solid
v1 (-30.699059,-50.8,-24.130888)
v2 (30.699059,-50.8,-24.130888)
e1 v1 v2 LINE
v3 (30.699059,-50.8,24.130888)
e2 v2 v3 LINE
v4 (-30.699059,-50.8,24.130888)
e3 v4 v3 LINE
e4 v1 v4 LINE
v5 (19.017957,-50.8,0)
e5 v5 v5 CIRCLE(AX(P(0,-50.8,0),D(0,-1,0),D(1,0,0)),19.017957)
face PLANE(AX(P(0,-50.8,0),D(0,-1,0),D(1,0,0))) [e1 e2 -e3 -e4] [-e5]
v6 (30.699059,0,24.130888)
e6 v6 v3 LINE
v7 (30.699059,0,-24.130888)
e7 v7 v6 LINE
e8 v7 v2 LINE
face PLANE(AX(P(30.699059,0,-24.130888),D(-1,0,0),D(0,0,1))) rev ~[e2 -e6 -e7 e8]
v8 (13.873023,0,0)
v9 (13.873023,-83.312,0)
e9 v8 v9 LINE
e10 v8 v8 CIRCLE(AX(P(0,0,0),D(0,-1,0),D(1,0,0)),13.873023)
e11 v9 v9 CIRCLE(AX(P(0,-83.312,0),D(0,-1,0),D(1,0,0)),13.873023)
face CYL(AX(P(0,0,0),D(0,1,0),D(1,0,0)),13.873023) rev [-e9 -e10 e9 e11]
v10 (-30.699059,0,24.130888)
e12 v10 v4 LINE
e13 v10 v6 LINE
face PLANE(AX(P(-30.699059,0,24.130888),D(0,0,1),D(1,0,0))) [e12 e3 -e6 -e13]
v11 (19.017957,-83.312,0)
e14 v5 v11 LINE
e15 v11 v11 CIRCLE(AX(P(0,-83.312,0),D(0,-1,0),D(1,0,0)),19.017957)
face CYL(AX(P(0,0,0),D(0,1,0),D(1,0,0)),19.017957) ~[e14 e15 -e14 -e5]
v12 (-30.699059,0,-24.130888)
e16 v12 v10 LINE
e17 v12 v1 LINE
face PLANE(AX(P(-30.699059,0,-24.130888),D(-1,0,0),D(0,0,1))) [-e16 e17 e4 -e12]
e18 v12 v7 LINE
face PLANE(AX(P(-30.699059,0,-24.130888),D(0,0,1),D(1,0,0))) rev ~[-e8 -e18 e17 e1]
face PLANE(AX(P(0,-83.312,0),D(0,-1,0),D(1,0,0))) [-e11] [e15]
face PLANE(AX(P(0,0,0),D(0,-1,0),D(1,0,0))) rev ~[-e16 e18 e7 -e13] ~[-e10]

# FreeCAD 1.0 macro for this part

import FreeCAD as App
import Part
import Sketcher
from FreeCAD import Vector


def add_polygon(sketch, points):
    """Adds a closed chain of lines whose ends are joined by coincident constraints."""
    first, n = sketch.GeometryCount, len(points)
    for a, b in zip(points, points[1:] + points[:1]):
        sketch.addGeometry(Part.LineSegment(App.Vector(*a, 0), App.Vector(*b, 0)), False)
    for i in range(n):
        sketch.addConstraint(Sketcher.Constraint("Coincident", first + i, 2, first + (i + 1) % n, 1))

doc = App.newDocument("Part")
params = doc.addObject("Spreadsheet::Sheet", "Params")
for row, (alias, value) in enumerate([
    ("pad1_length", "2 in"),
    ("pad2_length", "3.28 in"),
], start=1):
    params.set(f"A{row}", alias)
    params.set(f"B{row}", "=" + value)
    params.setAlias(f"B{row}", alias)

body = doc.addObject("PartDesign::Body", "Body")

# Sketch on XZ plane
sketch1 = body.newObject("Sketcher::SketchObject", "Sketch")
sketch1.AttachmentSupport = (doc.getObject("XZ_Plane"), [""])
sketch1.MapMode = "FlatFace"
add_polygon(sketch1, [(-31, 24), (-31, -24), (31, -24), (31, 24)])  # lines 0-3
sketch1.addGeometry(Part.Circle(Vector(0, 0, 0), Vector(0, 0, 1), 19), False)  # 4
sketch1.addConstraint([
    Sketcher.Constraint("Vertical", 0),
    Sketcher.Constraint("Horizontal", 1),
    Sketcher.Constraint("Vertical", 2),
    Sketcher.Constraint("Horizontal", 3),
    Sketcher.Constraint("Coincident", 4, 3, -1, 1),
    Sketcher.Constraint("Symmetric", 0, 2, 2, 2, -1, 1),
    Sketcher.Constraint("Diameter", 4, 38.035914),
    Sketcher.Constraint("DistanceX", 1, 1, 1, 2, 61.398118),
    Sketcher.Constraint("DistanceY", 0, 2, 0, 1, 48.261776),
])
pad1 = body.newObject("PartDesign::Pad", "Pad")
pad1.Profile = sketch1
pad1.setExpression("Length", "Params.pad1_length")

# Sketch on XZ plane
sketch2 = body.newObject("Sketcher::SketchObject", "Sketch001")
sketch2.AttachmentSupport = (doc.getObject("XZ_Plane"), [""])
sketch2.MapMode = "FlatFace"
sketch2.addGeometry([
    Part.Circle(Vector(0, 0, 0), Vector(0, 0, 1), 19),
    Part.Circle(Vector(0, 0, 0), Vector(0, 0, 1), 14),
], False)
sketch2.addConstraint([
    Sketcher.Constraint("Coincident", 0, 3, -1, 1),
    Sketcher.Constraint("Coincident", 1, 3, -1, 1),
    Sketcher.Constraint("Diameter", 0, 38.035914),
    Sketcher.Constraint("Diameter", 1, 27.746046),
])
pad2 = body.newObject("PartDesign::Pad", "Pad001")
pad2.Profile = sketch2
pad2.setExpression("Length", "Params.pad2_length")

doc.recompute()
